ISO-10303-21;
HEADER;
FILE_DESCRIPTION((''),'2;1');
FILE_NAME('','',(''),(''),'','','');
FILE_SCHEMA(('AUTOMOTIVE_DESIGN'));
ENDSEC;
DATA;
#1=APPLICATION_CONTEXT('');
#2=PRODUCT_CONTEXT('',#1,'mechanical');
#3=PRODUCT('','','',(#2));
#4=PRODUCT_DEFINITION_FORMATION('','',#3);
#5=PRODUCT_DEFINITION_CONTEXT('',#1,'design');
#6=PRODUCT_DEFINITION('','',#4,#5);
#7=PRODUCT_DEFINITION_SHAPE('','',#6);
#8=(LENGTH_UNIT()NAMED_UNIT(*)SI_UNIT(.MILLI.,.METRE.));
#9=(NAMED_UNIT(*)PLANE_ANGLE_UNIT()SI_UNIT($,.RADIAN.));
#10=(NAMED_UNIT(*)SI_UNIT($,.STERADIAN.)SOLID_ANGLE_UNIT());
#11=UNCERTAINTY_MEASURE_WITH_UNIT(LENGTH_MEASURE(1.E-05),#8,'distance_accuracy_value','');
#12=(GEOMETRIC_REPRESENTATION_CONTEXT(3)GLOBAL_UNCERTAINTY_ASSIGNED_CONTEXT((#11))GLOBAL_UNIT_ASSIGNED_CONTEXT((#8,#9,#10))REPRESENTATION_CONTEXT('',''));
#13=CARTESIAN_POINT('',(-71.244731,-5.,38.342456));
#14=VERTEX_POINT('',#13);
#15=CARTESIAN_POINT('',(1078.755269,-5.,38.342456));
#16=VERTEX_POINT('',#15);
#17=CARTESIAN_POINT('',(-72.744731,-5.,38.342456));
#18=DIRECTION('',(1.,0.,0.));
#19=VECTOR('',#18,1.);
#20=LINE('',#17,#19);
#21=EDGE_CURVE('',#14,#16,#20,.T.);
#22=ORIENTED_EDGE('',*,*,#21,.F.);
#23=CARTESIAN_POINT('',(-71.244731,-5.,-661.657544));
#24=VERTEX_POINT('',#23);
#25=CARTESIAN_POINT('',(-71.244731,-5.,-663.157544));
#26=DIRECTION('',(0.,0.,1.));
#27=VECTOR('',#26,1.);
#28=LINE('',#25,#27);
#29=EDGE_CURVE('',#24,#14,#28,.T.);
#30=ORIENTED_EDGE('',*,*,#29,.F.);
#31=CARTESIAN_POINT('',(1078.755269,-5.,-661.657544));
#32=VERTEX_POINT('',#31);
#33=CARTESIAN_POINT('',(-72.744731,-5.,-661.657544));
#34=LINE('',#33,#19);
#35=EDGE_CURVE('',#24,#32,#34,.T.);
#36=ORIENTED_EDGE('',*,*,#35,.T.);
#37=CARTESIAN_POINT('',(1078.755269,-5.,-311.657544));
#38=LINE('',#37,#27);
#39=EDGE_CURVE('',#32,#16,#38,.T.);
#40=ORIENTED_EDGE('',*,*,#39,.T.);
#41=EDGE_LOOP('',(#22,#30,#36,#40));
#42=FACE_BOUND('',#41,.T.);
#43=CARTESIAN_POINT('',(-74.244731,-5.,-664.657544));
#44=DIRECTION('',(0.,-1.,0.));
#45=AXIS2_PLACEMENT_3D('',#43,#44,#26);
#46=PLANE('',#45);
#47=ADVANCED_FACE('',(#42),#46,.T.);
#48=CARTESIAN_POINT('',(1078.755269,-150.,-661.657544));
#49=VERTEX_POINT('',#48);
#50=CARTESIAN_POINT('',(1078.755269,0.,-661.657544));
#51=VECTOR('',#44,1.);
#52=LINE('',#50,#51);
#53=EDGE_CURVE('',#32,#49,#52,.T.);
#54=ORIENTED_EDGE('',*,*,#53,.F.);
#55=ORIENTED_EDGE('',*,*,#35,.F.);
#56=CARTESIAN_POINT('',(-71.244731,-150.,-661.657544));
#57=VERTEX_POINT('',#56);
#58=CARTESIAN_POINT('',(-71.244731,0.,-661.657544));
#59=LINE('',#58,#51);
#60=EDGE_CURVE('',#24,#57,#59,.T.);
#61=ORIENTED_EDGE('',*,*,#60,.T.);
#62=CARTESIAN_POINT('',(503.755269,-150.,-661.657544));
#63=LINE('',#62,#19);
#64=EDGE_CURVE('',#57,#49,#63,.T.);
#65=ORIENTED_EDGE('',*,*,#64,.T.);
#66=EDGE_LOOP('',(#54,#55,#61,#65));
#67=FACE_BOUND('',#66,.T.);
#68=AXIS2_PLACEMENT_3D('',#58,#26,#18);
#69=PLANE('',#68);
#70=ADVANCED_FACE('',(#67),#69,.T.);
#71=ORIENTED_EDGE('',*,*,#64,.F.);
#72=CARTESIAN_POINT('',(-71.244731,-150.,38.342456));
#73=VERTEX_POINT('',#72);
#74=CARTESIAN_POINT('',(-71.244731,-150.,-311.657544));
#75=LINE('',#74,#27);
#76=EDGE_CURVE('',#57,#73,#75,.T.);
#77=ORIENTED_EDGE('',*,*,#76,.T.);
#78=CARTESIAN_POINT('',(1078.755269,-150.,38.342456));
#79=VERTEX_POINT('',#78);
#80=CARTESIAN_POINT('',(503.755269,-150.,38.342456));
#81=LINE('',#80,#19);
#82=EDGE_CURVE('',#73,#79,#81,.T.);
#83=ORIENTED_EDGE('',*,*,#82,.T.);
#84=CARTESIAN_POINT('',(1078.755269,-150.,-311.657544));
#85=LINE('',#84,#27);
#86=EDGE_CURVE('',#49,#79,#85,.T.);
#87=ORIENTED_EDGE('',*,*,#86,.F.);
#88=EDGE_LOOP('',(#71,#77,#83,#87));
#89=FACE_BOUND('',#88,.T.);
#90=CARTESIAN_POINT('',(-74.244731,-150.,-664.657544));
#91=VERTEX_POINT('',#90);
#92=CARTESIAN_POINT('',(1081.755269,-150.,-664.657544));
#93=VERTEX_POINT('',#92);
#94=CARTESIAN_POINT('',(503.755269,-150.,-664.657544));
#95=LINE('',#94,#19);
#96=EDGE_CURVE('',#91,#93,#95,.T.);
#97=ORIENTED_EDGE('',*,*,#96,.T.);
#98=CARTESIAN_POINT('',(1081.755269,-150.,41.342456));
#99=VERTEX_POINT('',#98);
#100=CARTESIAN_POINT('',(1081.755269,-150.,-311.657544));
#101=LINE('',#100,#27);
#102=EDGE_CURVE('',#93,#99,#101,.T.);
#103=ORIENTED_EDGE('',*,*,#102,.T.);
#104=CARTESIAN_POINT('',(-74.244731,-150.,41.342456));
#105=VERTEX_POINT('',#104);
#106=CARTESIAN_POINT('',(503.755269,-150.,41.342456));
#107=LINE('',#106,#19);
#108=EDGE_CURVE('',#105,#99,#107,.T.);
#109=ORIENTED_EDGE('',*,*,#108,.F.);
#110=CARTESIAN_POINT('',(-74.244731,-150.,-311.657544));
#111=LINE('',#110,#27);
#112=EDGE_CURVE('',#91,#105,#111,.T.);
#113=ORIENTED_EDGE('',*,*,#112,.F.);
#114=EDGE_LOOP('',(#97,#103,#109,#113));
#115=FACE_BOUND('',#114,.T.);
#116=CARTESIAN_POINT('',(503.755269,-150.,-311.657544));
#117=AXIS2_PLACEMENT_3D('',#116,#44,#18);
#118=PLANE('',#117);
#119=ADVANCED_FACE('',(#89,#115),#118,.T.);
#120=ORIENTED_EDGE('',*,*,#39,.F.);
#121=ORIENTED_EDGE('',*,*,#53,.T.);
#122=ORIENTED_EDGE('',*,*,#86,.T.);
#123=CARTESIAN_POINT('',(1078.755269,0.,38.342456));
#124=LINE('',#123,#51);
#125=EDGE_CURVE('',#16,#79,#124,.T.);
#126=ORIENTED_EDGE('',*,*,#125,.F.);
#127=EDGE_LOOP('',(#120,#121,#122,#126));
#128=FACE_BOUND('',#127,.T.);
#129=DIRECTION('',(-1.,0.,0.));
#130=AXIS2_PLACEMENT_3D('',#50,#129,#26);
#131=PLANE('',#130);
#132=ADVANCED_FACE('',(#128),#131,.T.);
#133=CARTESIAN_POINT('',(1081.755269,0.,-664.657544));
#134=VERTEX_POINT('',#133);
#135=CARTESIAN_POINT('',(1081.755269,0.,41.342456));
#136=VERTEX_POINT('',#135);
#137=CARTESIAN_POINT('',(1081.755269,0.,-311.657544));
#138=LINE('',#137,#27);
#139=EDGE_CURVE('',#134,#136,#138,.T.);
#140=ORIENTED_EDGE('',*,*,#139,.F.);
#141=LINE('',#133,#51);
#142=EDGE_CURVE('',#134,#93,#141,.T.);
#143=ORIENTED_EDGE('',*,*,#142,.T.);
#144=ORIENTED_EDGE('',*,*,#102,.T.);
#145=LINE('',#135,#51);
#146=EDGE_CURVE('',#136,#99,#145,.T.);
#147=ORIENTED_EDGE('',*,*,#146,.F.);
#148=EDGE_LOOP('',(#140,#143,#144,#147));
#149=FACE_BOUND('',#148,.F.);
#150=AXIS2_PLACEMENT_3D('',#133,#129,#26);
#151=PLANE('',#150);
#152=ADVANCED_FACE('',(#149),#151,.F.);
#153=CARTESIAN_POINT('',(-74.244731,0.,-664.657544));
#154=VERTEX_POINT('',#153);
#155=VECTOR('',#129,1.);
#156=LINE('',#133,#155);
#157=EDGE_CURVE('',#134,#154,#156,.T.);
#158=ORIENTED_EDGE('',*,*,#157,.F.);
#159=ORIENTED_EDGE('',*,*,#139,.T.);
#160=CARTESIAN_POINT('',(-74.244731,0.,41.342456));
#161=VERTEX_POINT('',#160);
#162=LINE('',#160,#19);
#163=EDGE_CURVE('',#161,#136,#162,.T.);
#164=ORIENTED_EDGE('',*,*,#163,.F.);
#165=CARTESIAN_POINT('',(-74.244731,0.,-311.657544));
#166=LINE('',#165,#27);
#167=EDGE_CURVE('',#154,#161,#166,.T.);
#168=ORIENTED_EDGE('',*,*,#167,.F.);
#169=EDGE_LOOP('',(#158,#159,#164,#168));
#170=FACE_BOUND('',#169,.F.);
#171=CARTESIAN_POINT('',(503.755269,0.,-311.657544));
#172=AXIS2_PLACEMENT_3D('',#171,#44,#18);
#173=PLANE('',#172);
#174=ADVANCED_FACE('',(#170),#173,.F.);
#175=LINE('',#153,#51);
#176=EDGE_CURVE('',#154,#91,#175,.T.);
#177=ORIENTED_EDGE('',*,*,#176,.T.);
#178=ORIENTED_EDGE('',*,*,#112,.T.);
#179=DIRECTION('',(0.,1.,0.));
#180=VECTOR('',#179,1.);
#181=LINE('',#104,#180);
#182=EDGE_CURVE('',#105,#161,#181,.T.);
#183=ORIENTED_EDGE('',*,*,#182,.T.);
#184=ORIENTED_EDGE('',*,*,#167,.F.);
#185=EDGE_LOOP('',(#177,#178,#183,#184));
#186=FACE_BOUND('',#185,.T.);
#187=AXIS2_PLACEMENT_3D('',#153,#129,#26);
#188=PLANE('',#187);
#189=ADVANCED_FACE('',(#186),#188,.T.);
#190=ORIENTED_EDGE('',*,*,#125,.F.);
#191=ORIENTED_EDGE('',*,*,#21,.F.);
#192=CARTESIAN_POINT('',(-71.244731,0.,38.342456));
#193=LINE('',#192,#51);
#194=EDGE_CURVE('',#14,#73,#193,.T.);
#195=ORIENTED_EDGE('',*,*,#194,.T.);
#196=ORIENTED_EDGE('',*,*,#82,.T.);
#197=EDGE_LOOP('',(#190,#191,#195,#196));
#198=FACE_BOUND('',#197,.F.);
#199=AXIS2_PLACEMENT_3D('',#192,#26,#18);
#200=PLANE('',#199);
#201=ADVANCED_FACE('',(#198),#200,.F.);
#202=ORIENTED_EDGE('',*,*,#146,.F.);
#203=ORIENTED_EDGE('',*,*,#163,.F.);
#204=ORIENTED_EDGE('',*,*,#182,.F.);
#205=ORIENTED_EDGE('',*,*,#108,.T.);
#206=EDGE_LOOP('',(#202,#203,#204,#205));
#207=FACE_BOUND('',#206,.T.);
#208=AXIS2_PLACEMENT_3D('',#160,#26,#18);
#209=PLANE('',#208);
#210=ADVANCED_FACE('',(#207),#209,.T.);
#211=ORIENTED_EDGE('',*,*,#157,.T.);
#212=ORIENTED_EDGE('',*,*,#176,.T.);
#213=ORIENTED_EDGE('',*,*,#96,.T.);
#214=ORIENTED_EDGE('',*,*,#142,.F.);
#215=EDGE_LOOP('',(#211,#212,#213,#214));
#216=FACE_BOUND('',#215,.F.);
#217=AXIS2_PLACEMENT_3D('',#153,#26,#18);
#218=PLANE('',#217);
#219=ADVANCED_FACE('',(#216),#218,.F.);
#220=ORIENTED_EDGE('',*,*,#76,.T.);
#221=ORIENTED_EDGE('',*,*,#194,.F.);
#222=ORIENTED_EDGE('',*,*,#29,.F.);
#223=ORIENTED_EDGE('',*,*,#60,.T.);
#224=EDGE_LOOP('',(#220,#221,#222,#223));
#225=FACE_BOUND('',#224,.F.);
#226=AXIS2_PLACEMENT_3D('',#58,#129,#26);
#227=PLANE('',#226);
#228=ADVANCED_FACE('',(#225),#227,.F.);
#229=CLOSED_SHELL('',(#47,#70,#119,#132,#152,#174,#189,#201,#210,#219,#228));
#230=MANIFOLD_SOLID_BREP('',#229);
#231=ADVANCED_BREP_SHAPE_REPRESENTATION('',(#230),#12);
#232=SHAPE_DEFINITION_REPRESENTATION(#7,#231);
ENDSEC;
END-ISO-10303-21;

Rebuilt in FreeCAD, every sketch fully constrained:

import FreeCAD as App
import Part
import Sketcher
from FreeCAD import Vector
Q = App.Units.Quantity


def add_polygon(sketch, points):
    """Adds a closed chain of lines whose ends are joined by coincident constraints."""
    first, n = sketch.GeometryCount, len(points)
    for a, b in zip(points, points[1:] + points[:1]):
        sketch.addGeometry(Part.LineSegment(App.Vector(*a, 0), App.Vector(*b, 0)), False)
    for i in range(n):
        sketch.addConstraint(Sketcher.Constraint("Coincident", first + i, 2, first + (i + 1) % n, 1))

doc = App.newDocument("Part")
params = doc.addObject("Spreadsheet::Sheet", "Params")
for row, (alias, value) in enumerate([
    ("sketch1_width", "1156 mm"),
    ("sketch1_width2", "1150 mm"),
    ("sketch1_height", "706 mm"),
    ("sketch1_height2", "700 mm"),
    ("pad1_length", "150 mm"),
    ("sketch2_width", "5 mm"),
    ("sketch2_height", "706 mm"),
], start=1):
    params.set(f"A{row}", alias)
    params.set(f"B{row}", "=" + value)
    params.setAlias(f"B{row}", alias)

body = doc.addObject("PartDesign::Body", "Body")

sketch1 = body.newObject("Sketcher::SketchObject", "Sketch")
sketch1.AttachmentSupport = (doc.getObject("XZ_Plane"), [""])
sketch1.MapMode = "FlatFace"
add_polygon(sketch1, [(-74, 41), (-74, -665), (1082, -665), (1082, 41)])
add_polygon(sketch1, [(1079, -662), (-71, -662), (-71, 38), (1079, 38)])
sketch1.addConstraint([
    Sketcher.Constraint("Vertical", 0),
    Sketcher.Constraint("Horizontal", 1),
    Sketcher.Constraint("Vertical", 2),
    Sketcher.Constraint("Horizontal", 3),
    Sketcher.Constraint("Horizontal", 4),
    Sketcher.Constraint("Vertical", 5),
    Sketcher.Constraint("Horizontal", 6),
    Sketcher.Constraint("Vertical", 7),
    Sketcher.Constraint("DistanceX", 1, 1, 1, 2, Q("1156 mm")),
    Sketcher.Constraint("DistanceX", 4, 2, 4, 1, Q("1150 mm")),
    Sketcher.Constraint("DistanceY", 0, 2, 0, 1, Q("706 mm")),
    Sketcher.Constraint("DistanceY", 5, 1, 5, 2, Q("700 mm")),
    Sketcher.Constraint("DistanceX", 0, 2, 4, 2, Q("3 mm")),
    Sketcher.Constraint("DistanceY", 0, 2, 4, 2, Q("3 mm")),
    Sketcher.Constraint("DistanceX", 0, 2, -1, 1, Q("74.244731 mm")),
    Sketcher.Constraint("DistanceY", 0, 2, -1, 1, Q("664.657544 mm")),
])
sketch1.setExpression("Constraints[16]", "Params.sketch1_width")
sketch1.setExpression("Constraints[17]", "Params.sketch1_width2")
sketch1.setExpression("Constraints[18]", "Params.sketch1_height")
sketch1.setExpression("Constraints[19]", "Params.sketch1_height2")
pad1 = body.newObject("PartDesign::Pad", "Pad")
pad1.Profile = sketch1
pad1.setExpression("Length", "Params.pad1_length")

sketch2 = body.newObject("Sketcher::SketchObject", "Sketch001")
sketch2.AttachmentSupport = (doc.getObject("YZ_Plane"), [""])
sketch2.MapMode = "FlatFace"
sketch2.AttachmentOffset = App.Placement(Vector(0, 0, -74.244731), App.Rotation())
add_polygon(sketch2, [(0, 41), (0, -665), (-5, -665), (-5, 41)])
sketch2.addConstraint([
    Sketcher.Constraint("Vertical", 0),
    Sketcher.Constraint("Horizontal", 1),
    Sketcher.Constraint("Vertical", 2),
    Sketcher.Constraint("Horizontal", 3),
    Sketcher.Constraint("PointOnObject", 0, 2, -2),
    Sketcher.Constraint("DistanceX", 1, 2, 1, 1, Q("5 mm")),
    Sketcher.Constraint("DistanceY", 0, 2, 0, 1, Q("706 mm")),
    Sketcher.Constraint("DistanceY", 0, 2, -1, 1, Q("664.657544 mm")),
])
sketch2.setExpression("Constraints[9]", "Params.sketch2_width")
sketch2.setExpression("Constraints[10]", "Params.sketch2_height")
pad2 = body.newObject("PartDesign::Pad", "Pad001")
pad2.Profile = sketch2
pad2.Type = "UpToLast"

doc.recompute()
